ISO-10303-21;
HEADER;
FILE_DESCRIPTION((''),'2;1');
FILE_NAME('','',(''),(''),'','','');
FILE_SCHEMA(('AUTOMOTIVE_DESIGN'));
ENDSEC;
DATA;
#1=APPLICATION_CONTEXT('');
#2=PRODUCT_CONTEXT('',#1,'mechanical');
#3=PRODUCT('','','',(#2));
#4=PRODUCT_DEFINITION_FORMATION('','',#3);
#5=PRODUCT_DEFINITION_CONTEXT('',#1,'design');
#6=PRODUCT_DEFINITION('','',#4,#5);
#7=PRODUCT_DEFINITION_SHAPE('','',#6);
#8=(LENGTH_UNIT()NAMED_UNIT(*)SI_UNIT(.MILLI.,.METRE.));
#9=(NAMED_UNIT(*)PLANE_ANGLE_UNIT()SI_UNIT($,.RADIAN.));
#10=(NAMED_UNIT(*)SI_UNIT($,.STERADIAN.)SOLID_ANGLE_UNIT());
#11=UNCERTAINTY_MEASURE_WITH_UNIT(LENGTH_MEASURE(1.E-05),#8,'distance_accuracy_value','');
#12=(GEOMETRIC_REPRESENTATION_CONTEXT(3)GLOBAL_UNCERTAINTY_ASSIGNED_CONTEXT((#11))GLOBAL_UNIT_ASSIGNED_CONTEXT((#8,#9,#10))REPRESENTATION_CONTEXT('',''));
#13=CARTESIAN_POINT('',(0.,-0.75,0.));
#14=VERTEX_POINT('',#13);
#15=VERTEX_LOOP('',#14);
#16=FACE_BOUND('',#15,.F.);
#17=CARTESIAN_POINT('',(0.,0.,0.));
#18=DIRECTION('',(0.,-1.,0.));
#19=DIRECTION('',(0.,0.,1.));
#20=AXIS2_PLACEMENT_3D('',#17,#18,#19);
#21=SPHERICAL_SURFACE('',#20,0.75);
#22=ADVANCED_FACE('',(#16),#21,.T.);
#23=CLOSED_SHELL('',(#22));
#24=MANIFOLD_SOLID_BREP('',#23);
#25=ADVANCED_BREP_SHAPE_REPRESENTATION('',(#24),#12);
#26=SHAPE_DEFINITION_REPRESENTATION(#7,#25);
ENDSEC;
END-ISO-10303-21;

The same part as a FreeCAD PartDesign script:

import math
import FreeCAD as App
import Part
import Sketcher
from FreeCAD import Vector

doc = App.newDocument("Part")
body = doc.addObject("PartDesign::Body", "Body")

sketch1 = doc.addObject("Sketcher::SketchObject", "Sketch")
body.addObject(sketch1)
sketch1.AttachmentSupport = (doc.YZ_Plane, [""])
sketch1.MapMode = "FlatFace"
sketch1.addGeometry([
    Part.LineSegment(Vector(-0.75, 0, 0), Vector(0.75, 0, 0)),
    Part.ArcOfCircle(Part.Circle(Vector(0, 0, 0), Vector(0, 0, 1), 0.75), math.radians(0), math.radians(180)),
], False)
sketch1.addConstraint([
    Sketcher.Constraint("Coincident", 0, 1, 1, 2),
    Sketcher.Constraint("Coincident", 1, 1, 0, 2),
    Sketcher.Constraint("Horizontal", 0),
    Sketcher.Constraint("Coincident", 1, 3, -1, 1),
    Sketcher.Constraint("PointOnObject", 0, 1, -1),
    Sketcher.Constraint("Radius", 1, 0.75),
])
revolution = doc.addObject("PartDesign::Revolution", "Revolution")
body.addObject(revolution)
revolution.Profile = sketch1
revolution.ReferenceAxis = (sketch1, ["H_Axis"])
revolution.Angle = 360

doc.recompute()
